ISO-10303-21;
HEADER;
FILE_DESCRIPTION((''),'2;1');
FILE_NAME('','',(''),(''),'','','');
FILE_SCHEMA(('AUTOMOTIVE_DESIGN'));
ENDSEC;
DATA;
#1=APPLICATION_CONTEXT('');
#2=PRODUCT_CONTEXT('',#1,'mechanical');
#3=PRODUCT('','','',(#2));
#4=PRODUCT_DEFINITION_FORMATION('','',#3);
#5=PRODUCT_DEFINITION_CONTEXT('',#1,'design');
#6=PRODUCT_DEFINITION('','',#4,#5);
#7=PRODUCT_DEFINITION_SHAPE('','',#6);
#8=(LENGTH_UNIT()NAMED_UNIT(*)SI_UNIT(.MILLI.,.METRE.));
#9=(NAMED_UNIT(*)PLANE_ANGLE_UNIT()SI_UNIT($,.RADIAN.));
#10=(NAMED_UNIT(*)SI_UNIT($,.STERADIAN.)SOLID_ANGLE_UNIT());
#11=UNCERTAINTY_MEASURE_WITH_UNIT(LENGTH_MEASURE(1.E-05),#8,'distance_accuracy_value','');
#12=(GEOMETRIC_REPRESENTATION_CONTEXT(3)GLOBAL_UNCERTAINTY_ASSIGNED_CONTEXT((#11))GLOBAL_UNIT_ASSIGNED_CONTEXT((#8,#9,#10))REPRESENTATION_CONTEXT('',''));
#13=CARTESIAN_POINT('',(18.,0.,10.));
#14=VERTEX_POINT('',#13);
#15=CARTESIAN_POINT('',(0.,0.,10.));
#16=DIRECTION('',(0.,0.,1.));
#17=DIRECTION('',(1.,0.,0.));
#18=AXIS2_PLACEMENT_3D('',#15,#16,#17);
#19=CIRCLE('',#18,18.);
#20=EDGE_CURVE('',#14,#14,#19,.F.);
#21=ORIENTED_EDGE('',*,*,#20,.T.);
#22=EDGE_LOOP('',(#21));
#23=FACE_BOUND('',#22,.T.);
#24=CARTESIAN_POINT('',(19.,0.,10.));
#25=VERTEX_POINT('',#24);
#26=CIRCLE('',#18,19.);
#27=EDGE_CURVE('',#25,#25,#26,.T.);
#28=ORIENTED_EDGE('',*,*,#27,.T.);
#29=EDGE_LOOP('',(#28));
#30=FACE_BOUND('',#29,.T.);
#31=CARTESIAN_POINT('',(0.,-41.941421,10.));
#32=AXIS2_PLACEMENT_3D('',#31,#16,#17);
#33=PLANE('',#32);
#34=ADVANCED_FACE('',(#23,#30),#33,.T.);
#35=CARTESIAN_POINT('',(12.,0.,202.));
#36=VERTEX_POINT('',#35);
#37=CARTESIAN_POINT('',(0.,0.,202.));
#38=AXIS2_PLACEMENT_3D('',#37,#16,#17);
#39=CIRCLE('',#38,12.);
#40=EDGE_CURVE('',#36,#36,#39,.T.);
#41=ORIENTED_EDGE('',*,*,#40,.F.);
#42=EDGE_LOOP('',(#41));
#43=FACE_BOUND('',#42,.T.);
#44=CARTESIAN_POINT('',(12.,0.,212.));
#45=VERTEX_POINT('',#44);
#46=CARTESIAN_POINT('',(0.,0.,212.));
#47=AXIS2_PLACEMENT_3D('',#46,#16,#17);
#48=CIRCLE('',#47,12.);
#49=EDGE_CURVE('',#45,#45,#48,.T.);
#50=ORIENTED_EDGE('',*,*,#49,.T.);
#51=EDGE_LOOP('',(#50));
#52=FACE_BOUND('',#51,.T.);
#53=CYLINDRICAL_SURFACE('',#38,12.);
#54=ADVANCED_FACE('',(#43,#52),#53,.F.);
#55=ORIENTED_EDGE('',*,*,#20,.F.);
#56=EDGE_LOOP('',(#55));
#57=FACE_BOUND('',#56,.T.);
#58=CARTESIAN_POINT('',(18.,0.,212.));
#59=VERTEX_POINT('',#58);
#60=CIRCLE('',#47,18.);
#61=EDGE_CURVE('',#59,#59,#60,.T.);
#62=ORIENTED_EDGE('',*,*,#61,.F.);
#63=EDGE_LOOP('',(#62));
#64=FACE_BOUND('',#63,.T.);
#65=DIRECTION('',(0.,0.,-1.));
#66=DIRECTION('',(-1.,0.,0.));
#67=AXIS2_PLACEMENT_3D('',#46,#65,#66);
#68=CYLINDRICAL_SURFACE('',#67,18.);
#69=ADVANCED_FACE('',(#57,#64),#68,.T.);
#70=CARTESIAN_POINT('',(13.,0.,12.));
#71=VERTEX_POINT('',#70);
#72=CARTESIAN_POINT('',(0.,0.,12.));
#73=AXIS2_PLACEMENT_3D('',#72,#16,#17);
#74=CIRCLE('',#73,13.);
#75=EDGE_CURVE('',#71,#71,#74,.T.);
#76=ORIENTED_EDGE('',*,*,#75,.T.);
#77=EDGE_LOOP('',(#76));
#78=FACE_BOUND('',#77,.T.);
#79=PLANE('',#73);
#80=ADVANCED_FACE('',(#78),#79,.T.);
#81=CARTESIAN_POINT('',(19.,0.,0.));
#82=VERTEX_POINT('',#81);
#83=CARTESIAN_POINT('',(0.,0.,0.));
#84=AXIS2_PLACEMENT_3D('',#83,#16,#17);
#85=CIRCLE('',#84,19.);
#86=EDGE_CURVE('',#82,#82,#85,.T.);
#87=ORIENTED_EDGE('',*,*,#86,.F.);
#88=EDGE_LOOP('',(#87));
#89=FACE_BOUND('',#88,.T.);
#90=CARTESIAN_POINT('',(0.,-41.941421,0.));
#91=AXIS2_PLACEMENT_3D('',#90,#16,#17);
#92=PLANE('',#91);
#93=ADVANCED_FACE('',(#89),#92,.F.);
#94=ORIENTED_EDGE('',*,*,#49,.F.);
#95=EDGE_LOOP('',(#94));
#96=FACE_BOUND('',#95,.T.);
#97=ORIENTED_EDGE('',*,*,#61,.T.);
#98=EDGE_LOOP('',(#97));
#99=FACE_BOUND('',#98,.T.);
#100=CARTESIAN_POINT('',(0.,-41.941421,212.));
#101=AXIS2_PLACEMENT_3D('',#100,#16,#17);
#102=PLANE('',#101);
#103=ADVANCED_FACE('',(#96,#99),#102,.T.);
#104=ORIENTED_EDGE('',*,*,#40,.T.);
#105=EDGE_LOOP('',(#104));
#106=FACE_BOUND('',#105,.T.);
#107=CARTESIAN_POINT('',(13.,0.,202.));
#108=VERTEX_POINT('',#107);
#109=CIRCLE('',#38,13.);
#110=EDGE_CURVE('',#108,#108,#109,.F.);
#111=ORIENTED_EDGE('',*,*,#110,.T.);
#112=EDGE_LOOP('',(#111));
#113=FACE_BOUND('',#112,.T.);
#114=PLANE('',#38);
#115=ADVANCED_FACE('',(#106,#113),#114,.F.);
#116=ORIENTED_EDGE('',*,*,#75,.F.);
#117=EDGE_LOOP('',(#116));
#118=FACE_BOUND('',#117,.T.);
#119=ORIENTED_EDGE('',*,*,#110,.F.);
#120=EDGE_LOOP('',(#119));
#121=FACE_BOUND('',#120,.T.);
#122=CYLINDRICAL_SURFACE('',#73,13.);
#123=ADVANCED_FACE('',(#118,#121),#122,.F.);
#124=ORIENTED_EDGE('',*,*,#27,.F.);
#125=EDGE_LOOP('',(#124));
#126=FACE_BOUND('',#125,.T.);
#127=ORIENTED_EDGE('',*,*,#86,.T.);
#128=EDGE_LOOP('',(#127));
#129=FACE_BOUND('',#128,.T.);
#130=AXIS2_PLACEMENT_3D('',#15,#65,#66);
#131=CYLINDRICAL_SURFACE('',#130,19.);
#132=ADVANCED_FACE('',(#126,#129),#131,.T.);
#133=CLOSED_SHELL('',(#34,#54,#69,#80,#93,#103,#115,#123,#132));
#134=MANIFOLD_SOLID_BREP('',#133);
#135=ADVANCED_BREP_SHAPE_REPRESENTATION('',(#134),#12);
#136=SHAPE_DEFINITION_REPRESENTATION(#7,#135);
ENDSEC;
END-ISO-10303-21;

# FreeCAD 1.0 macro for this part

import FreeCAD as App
import Part
import Sketcher
from FreeCAD import Vector

doc = App.newDocument("Part")
body = doc.addObject("PartDesign::Body", "Body")

sketch1 = doc.addObject("Sketcher::SketchObject", "Sketch")
body.addObject(sketch1)
sketch1.AttachmentSupport = (doc.XY_Plane, [""])
sketch1.MapMode = "FlatFace"
sketch1.addGeometry([
    Part.Circle(Vector(0, 0, 0), Vector(0, 0, 1), 19),
    Part.Circle(Vector(0, 0, 0), Vector(0, 0, 1), 18),
], False)
sketch1.addConstraint([
    Sketcher.Constraint("Coincident", 0, 3, -1, 1),
    Sketcher.Constraint("Coincident", 1, 3, -1, 1),
    Sketcher.Constraint("Diameter", 0, 38.0),
    Sketcher.Constraint("Diameter", 1, 36.0),
])
pad1 = doc.addObject("PartDesign::Pad", "Pad")
body.addObject(pad1)
pad1.Profile = sketch1
pad1.Length = 10

sketch2 = doc.addObject("Sketcher::SketchObject", "Sketch001")
body.addObject(sketch2)
sketch2.AttachmentSupport = (doc.XY_Plane, [""])
sketch2.MapMode = "FlatFace"
sketch2.addGeometry(Part.Circle(Vector(0, 0, 0), Vector(0, 0, 1), 18), False)
sketch2.addConstraint([
    Sketcher.Constraint("Coincident", 0, 3, -1, 1),
    Sketcher.Constraint("Diameter", 0, 36.0),
])
pad2 = doc.addObject("PartDesign::Pad", "Pad001")
body.addObject(pad2)
pad2.Profile = sketch2
pad2.Length = 212

sketch3 = doc.addObject("Sketcher::SketchObject", "Sketch002")
body.addObject(sketch3)
sketch3.AttachmentSupport = (doc.XY_Plane, [""])
sketch3.MapMode = "FlatFace"
sketch3.AttachmentOffset = App.Placement(Vector(0, 0, 212), App.Rotation())
sketch3.addGeometry(Part.Circle(Vector(0, 0, 0), Vector(0, 0, 1), 13), False)
sketch3.addConstraint([
    Sketcher.Constraint("Coincident", 0, 3, -1, 1),
    Sketcher.Constraint("Diameter", 0, 26.0),
])
pocket1 = doc.addObject("PartDesign::Pocket", "Pocket")
body.addObject(pocket1)
pocket1.Profile = sketch3
pocket1.Length = 200

sketch4 = doc.addObject("Sketcher::SketchObject", "Sketch003")
body.addObject(sketch4)
sketch4.AttachmentSupport = (doc.XY_Plane, [""])
sketch4.MapMode = "FlatFace"
sketch4.AttachmentOffset = App.Placement(Vector(0, 0, 212), App.Rotation())
sketch4.addGeometry([
    Part.Circle(Vector(0, 0, 0), Vector(0, 0, 1), 13),
    Part.Circle(Vector(0, 0, 0), Vector(0, 0, 1), 12),
], False)
sketch4.addConstraint([
    Sketcher.Constraint("Coincident", 0, 3, -1, 1),
    Sketcher.Constraint("Coincident", 1, 3, -1, 1),
    Sketcher.Constraint("Diameter", 0, 26.0),
    Sketcher.Constraint("Diameter", 1, 24.0),
])
pad3 = doc.addObject("PartDesign::Pad", "Pad002")
body.addObject(pad3)
pad3.Profile = sketch4
pad3.Length = 10
pad3.Reversed = True

doc.recompute()
